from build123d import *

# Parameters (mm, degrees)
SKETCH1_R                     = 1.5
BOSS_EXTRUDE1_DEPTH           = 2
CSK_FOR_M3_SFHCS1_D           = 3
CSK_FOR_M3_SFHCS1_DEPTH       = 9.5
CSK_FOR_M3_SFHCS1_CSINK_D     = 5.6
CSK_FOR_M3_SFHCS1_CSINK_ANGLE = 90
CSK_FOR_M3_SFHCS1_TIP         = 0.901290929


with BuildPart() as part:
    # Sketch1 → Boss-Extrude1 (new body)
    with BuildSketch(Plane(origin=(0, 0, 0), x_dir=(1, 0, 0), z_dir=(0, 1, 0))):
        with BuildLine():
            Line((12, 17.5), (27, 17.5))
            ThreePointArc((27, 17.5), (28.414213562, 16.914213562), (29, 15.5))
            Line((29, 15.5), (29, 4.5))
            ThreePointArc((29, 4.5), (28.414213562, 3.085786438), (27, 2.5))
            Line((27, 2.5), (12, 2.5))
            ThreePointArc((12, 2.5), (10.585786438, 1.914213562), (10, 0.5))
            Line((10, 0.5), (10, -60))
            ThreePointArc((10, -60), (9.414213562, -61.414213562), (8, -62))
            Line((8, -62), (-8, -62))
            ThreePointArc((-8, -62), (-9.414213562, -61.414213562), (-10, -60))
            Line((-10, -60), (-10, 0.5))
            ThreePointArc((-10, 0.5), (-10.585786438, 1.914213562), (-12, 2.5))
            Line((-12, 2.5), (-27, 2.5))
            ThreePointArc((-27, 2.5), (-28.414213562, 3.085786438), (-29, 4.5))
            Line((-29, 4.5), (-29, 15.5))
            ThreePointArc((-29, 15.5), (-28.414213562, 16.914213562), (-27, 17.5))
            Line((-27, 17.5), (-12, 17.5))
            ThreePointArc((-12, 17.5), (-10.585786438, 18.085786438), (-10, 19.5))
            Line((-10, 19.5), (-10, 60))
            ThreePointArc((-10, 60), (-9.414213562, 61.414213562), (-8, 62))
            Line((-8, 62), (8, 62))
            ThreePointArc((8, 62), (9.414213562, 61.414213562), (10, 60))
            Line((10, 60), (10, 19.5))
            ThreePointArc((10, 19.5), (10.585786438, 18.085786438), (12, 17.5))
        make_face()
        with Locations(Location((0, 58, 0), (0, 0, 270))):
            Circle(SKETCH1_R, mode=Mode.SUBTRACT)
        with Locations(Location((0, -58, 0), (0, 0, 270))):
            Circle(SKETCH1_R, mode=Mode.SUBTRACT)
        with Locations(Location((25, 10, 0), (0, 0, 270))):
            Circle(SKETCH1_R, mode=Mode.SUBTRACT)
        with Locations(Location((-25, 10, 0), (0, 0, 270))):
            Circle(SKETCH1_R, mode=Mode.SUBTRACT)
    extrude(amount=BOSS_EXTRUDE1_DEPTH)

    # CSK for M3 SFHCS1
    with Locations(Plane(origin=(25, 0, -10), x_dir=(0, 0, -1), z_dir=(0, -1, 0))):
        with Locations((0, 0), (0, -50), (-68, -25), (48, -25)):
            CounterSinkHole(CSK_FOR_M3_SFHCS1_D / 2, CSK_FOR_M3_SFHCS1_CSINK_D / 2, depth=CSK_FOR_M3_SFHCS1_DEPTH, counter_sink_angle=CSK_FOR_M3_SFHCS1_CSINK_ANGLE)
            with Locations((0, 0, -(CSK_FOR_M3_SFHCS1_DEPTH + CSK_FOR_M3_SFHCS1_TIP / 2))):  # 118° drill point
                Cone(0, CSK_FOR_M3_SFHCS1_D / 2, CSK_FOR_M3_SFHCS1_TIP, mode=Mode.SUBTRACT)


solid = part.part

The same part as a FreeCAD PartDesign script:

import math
import FreeCAD as App
import Part
import Sketcher

V = App.Vector
Q = App.Units.Quantity

doc = App.newDocument("Part")
body = doc.addObject("PartDesign::Body", "Body")

sketch1 = doc.addObject("Sketcher::SketchObject", "Sketch")
body.addObject(sketch1)
sketch1.AttachmentSupport = (doc.XZ_Plane, [""])
sketch1.MapMode = "FlatFace"
sketch1.addGeometry(Part.LineSegment(V(27, -17.5, 0), V(12, -17.5, 0)), False)
sketch1.addGeometry(Part.ArcOfCircle(Part.Circle(V(12, -19.5, 0), V(0, 0, 1), 2), math.radians(90), math.radians(180)), False)
sketch1.addGeometry(Part.LineSegment(V(10, -19.5, 0), V(10, -60, 0)), False)
sketch1.addGeometry(Part.ArcOfCircle(Part.Circle(V(8, -60, 0), V(0, 0, 1), 2), math.radians(-90), math.radians(0)), False)
sketch1.addGeometry(Part.LineSegment(V(8, -62, 0), V(-8, -62, 0)), False)
sketch1.addGeometry(Part.ArcOfCircle(Part.Circle(V(-8, -60, 0), V(0, 0, 1), 2), math.radians(-180), math.radians(-90)), False)
sketch1.addGeometry(Part.LineSegment(V(-10, -60, 0), V(-10, -19.5, 0)), False)
sketch1.addGeometry(Part.ArcOfCircle(Part.Circle(V(-12, -19.5, 0), V(0, 0, 1), 2), math.radians(0), math.radians(90)), False)
sketch1.addGeometry(Part.LineSegment(V(-12, -17.5, 0), V(-27, -17.5, 0)), False)
sketch1.addGeometry(Part.ArcOfCircle(Part.Circle(V(-27, -15.5, 0), V(0, 0, 1), 2), math.radians(-180), math.radians(-90)), False)
sketch1.addGeometry(Part.LineSegment(V(-29, -15.5, 0), V(-29, -4.5, 0)), False)
sketch1.addGeometry(Part.ArcOfCircle(Part.Circle(V(-27, -4.5, 0), V(0, 0, 1), 2), math.radians(90), math.radians(180)), False)
sketch1.addGeometry(Part.LineSegment(V(-27, -2.5, 0), V(-12, -2.5, 0)), False)
sketch1.addGeometry(Part.ArcOfCircle(Part.Circle(V(-12, -0.5, 0), V(0, 0, 1), 2), math.radians(-90), math.radians(0)), False)
sketch1.addGeometry(Part.LineSegment(V(-10, -0.5, 0), V(-10, 60, 0)), False)
sketch1.addGeometry(Part.ArcOfCircle(Part.Circle(V(-8, 60, 0), V(0, 0, 1), 2), math.radians(90), math.radians(180)), False)
sketch1.addGeometry(Part.LineSegment(V(-8, 62, 0), V(8, 62, 0)), False)
sketch1.addGeometry(Part.ArcOfCircle(Part.Circle(V(8, 60, 0), V(0, 0, 1), 2), math.radians(0), math.radians(90)), False)
sketch1.addGeometry(Part.LineSegment(V(10, 60, 0), V(10, -0.5, 0)), False)
sketch1.addGeometry(Part.ArcOfCircle(Part.Circle(V(12, -0.5, 0), V(0, 0, 1), 2), math.radians(-180), math.radians(-90)), False)
sketch1.addGeometry(Part.LineSegment(V(12, -2.5, 0), V(27, -2.5, 0)), False)
sketch1.addGeometry(Part.ArcOfCircle(Part.Circle(V(27, -4.5, 0), V(0, 0, 1), 2), math.radians(0), math.radians(90)), False)
sketch1.addGeometry(Part.LineSegment(V(29, -4.5, 0), V(29, -15.5, 0)), False)
sketch1.addGeometry(Part.ArcOfCircle(Part.Circle(V(27, -15.5, 0), V(0, 0, 1), 2), math.radians(-90), math.radians(0)), False)
sketch1.addGeometry(Part.Circle(V(0, 58, 0), V(0, 0, 1), 1.5), False)
sketch1.addGeometry(Part.Circle(V(25, -10, 0), V(0, 0, 1), 1.5), False)
sketch1.addGeometry(Part.Circle(V(-25, -10, 0), V(0, 0, 1), 1.5), False)
sketch1.addGeometry(Part.Circle(V(0, -58, 0), V(0, 0, 1), 1.5), False)
sketch1.addConstraint(Sketcher.Constraint("Tangent", 0, 2, 1, 1))
sketch1.addConstraint(Sketcher.Constraint("Tangent", 1, 2, 2, 1))
sketch1.addConstraint(Sketcher.Constraint("Tangent", 2, 2, 3, 2))
sketch1.addConstraint(Sketcher.Constraint("Tangent", 3, 1, 4, 1))
sketch1.addConstraint(Sketcher.Constraint("Tangent", 4, 2, 5, 2))
sketch1.addConstraint(Sketcher.Constraint("Tangent", 5, 1, 6, 1))
sketch1.addConstraint(Sketcher.Constraint("Tangent", 6, 2, 7, 1))
sketch1.addConstraint(Sketcher.Constraint("Tangent", 7, 2, 8, 1))
sketch1.addConstraint(Sketcher.Constraint("Tangent", 8, 2, 9, 2))
sketch1.addConstraint(Sketcher.Constraint("Tangent", 9, 1, 10, 1))
sketch1.addConstraint(Sketcher.Constraint("Tangent", 10, 2, 11, 2))
sketch1.addConstraint(Sketcher.Constraint("Tangent", 11, 1, 12, 1))
sketch1.addConstraint(Sketcher.Constraint("Tangent", 12, 2, 13, 1))
sketch1.addConstraint(Sketcher.Constraint("Tangent", 13, 2, 14, 1))
sketch1.addConstraint(Sketcher.Constraint("Tangent", 14, 2, 15, 2))
sketch1.addConstraint(Sketcher.Constraint("Tangent", 15, 1, 16, 1))
sketch1.addConstraint(Sketcher.Constraint("Tangent", 16, 2, 17, 2))
sketch1.addConstraint(Sketcher.Constraint("Tangent", 17, 1, 18, 1))
sketch1.addConstraint(Sketcher.Constraint("Tangent", 18, 2, 19, 1))
sketch1.addConstraint(Sketcher.Constraint("Tangent", 19, 2, 20, 1))
sketch1.addConstraint(Sketcher.Constraint("Tangent", 20, 2, 21, 2))
sketch1.addConstraint(Sketcher.Constraint("Tangent", 21, 1, 22, 1))
sketch1.addConstraint(Sketcher.Constraint("Tangent", 22, 2, 23, 2))
sketch1.addConstraint(Sketcher.Constraint("Tangent", 23, 1, 0, 1))
sketch1.addConstraint(Sketcher.Constraint("Horizontal", 0))
sketch1.addConstraint(Sketcher.Constraint("Vertical", 2))
sketch1.addConstraint(Sketcher.Constraint("Horizontal", 4))
sketch1.addConstraint(Sketcher.Constraint("Vertical", 6))
sketch1.addConstraint(Sketcher.Constraint("Horizontal", 8))
sketch1.addConstraint(Sketcher.Constraint("Vertical", 10))
sketch1.addConstraint(Sketcher.Constraint("Horizontal", 12))
sketch1.addConstraint(Sketcher.Constraint("Vertical", 14))
sketch1.addConstraint(Sketcher.Constraint("Horizontal", 16))
sketch1.addConstraint(Sketcher.Constraint("Vertical", 18))
sketch1.addConstraint(Sketcher.Constraint("Horizontal", 20))
sketch1.addConstraint(Sketcher.Constraint("Vertical", 22))
sketch1.addConstraint(Sketcher.Constraint("Equal", 1, 3))
sketch1.addConstraint(Sketcher.Constraint("Equal", 3, 5))
sketch1.addConstraint(Sketcher.Constraint("Equal", 5, 7))
sketch1.addConstraint(Sketcher.Constraint("Equal", 7, 9))
sketch1.addConstraint(Sketcher.Constraint("Equal", 9, 11))
sketch1.addConstraint(Sketcher.Constraint("Equal", 11, 13))
sketch1.addConstraint(Sketcher.Constraint("Equal", 13, 15))
sketch1.addConstraint(Sketcher.Constraint("Equal", 15, 17))
sketch1.addConstraint(Sketcher.Constraint("Equal", 17, 19))
sketch1.addConstraint(Sketcher.Constraint("Equal", 19, 21))
sketch1.addConstraint(Sketcher.Constraint("Equal", 21, 23))
sketch1.addConstraint(Sketcher.Constraint("Equal", 24, 25))
sketch1.addConstraint(Sketcher.Constraint("Equal", 25, 26))
sketch1.addConstraint(Sketcher.Constraint("Equal", 26, 27))
sketch1.addConstraint(Sketcher.Constraint("Symmetric", 3, 3, 15, 3, -1, 1))
sketch1.addConstraint(Sketcher.Constraint("Symmetric", 24, 3, 27, 3, -1, 1))
sketch1.addConstraint(Sketcher.Constraint("Symmetric", 1, 3, 7, 3, -2))
sketch1.addConstraint(Sketcher.Constraint("Symmetric", 13, 3, 19, 3, -2))
sketch1.addConstraint(Sketcher.Constraint("Symmetric", 25, 3, 26, 3, -2))
sketch1.addConstraint(Sketcher.Constraint("PointOnObject", 24, 3, -2))
sketch1.addConstraint(Sketcher.Constraint("Equal", 0, 8))
sketch1.addConstraint(Sketcher.Constraint("Diameter", 24, Q("3 mm")))
sketch1.addConstraint(Sketcher.Constraint("Radius", 1, Q("2 mm")))
sketch1.addConstraint(Sketcher.Constraint("DistanceX", 0, 2, 0, 1, Q("15 mm")))
sketch1.addConstraint(Sketcher.Constraint("DistanceX", 4, 2, 4, 1, Q("16 mm")))
sketch1.addConstraint(Sketcher.Constraint("DistanceY", 10, 1, 10, 2, Q("11 mm")))
sketch1.addConstraint(Sketcher.Constraint("DistanceY", 2, 2, 2, 1, Q("40.5 mm")))
sketch1.addConstraint(Sketcher.Constraint("DistanceY", 14, 1, 14, 2, Q("60.5 mm")))
sketch1.addConstraint(Sketcher.Constraint("DistanceY", -1, 1, 24, 3, Q("58 mm")))
sketch1.addConstraint(Sketcher.Constraint("DistanceX", -1, 1, 25, 3, Q("25 mm")))
sketch1.addConstraint(Sketcher.Constraint("DistanceY", 25, 3, -1, 1, Q("10 mm")))
pad1 = doc.addObject("PartDesign::Pad", "Pad")
body.addObject(pad1)
pad1.Profile = sketch1
pad1.Length = 2
pad1.Reversed = True

sketch2 = doc.addObject("Sketcher::SketchObject", "Sketch001")
body.addObject(sketch2)
sketch2.AttachmentSupport = (doc.XZ_Plane, [""])
sketch2.MapMode = "FlatFace"
sketch2.addGeometry(Part.Circle(V(25, -10, 0), V(0, 0, 1), 1.5), False)
sketch2.addGeometry(Part.Circle(V(-25, -10, 0), V(0, 0, 1), 1.5), False)
sketch2.addGeometry(Part.Circle(V(0, 58, 0), V(0, 0, 1), 1.5), False)
sketch2.addGeometry(Part.Circle(V(0, -58, 0), V(0, 0, 1), 1.5), False)
sketch2.addConstraint(Sketcher.Constraint("Equal", 0, 1))
sketch2.addConstraint(Sketcher.Constraint("Equal", 1, 2))
sketch2.addConstraint(Sketcher.Constraint("Equal", 2, 3))
sketch2.addConstraint(Sketcher.Constraint("Symmetric", 2, 3, 3, 3, -1, 1))
sketch2.addConstraint(Sketcher.Constraint("Symmetric", 0, 3, 1, 3, -2))
sketch2.addConstraint(Sketcher.Constraint("PointOnObject", 2, 3, -2))
sketch2.addConstraint(Sketcher.Constraint("Diameter", 0, Q("3 mm")))
sketch2.addConstraint(Sketcher.Constraint("DistanceX", -1, 1, 0, 3, Q("25 mm")))
sketch2.addConstraint(Sketcher.Constraint("DistanceY", 0, 3, -1, 1, Q("10 mm")))
sketch2.addConstraint(Sketcher.Constraint("DistanceY", -1, 1, 2, 3, Q("58 mm")))
doc.recompute()
hole = doc.addObject("PartDesign::Hole", "Hole")
body.addObject(hole)
hole.Profile = sketch2
hole.ThreadType = "None"
hole.Diameter = 3
hole.DepthType = "Dimension"
hole.Depth = 9.5
hole.DrillPoint = "Angled"
hole.DrillPointAngle = 118
hole.HoleCutType = "Countersink"
hole.HoleCutDiameter = 5.6
hole.HoleCutCountersinkAngle = 90

doc.recompute()
